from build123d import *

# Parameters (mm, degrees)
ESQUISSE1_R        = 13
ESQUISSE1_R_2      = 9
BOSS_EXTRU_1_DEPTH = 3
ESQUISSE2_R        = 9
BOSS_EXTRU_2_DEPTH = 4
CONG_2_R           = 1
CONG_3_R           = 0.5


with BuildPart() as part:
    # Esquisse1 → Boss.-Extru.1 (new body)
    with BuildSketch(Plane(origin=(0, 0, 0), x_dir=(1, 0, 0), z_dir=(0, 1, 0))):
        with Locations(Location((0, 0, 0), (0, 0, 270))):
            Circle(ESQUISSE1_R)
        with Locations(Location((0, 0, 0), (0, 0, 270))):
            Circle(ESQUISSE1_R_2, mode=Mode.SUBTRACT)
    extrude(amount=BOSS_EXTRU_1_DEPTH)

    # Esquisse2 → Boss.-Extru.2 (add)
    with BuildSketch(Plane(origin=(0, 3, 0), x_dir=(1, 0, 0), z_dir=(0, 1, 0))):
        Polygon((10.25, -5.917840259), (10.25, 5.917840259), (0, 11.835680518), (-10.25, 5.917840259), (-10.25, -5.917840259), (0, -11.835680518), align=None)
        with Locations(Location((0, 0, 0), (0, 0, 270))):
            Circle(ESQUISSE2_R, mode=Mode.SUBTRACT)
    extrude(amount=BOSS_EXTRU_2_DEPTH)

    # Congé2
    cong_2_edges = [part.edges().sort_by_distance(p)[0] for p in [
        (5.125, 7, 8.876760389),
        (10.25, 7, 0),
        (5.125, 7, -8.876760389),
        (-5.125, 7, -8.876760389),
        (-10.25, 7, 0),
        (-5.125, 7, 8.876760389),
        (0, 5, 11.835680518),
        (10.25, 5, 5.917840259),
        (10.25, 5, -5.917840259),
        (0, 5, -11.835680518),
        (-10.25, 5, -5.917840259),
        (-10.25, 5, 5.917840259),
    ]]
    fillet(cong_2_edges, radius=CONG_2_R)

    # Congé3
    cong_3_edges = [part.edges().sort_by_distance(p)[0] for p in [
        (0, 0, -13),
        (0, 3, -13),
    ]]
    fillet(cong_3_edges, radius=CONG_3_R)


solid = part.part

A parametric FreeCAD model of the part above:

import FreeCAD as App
import Part
import Sketcher
Q = App.Units.Quantity


def edges_at(feature, points):
    """Names of the edges that pass closest to the given points."""
    edges = feature.Shape.Edges
    near = lambda p: min(range(len(edges)), key=lambda i: edges[i].distToShape(Part.Vertex(*p))[0])
    return sorted({f"Edge{near(p) + 1}" for p in points})


def add_polygon(sketch, points):
    """Adds a closed chain of lines whose ends are joined by coincident constraints."""
    first, n = sketch.GeometryCount, len(points)
    for a, b in zip(points, points[1:] + points[:1]):
        sketch.addGeometry(Part.LineSegment(App.Vector(*a, 0), App.Vector(*b, 0)), False)
    for i in range(n):
        sketch.addConstraint(Sketcher.Constraint("Coincident", first + i, 2, first + (i + 1) % n, 1))

doc = App.newDocument("Part")
body = doc.addObject("PartDesign::Body", "Body")

# Sketch on XZ plane
sketch1 = body.newObject("Sketcher::SketchObject", "Sketch")
sketch1.AttachmentSupport = (doc.getObject("XZ_Plane"), [""])
sketch1.MapMode = "FlatFace"
sketch1.addGeometry([
    Part.Circle(App.Vector(0, 0, 0), App.Vector(0, 0, 1), 13),
    Part.Circle(App.Vector(0, 0, 0), App.Vector(0, 0, 1), 9),
], False)
sketch1.addConstraint([
    Sketcher.Constraint("Coincident", 0, 3, -1, 1),
    Sketcher.Constraint("Coincident", 1, 3, -1, 1),
    Sketcher.Constraint("Diameter", 0, 26.0),
    Sketcher.Constraint("Diameter", 1, 18.0),
])
pad1 = body.newObject("PartDesign::Pad", "Pad")
pad1.Profile = sketch1
pad1.Length = 3
pad1.Reversed = True

# Sketch on XZ plane
sketch2 = body.newObject("Sketcher::SketchObject", "Sketch001")
sketch2.AttachmentSupport = (doc.getObject("XZ_Plane"), [""])
sketch2.MapMode = "FlatFace"
sketch2.AttachmentOffset = App.Placement(App.Vector(0, 0, -3), App.Rotation())
add_polygon(sketch2, [(10, 6), (10, -6), (0, -12), (-10, -6), (-10, 6), (0, 12)])  # lines 0-5
sketch2.addGeometry(Part.Circle(App.Vector(0, 0, 0), App.Vector(0, 0, 1), 9), False)  # 6
sketch2.addConstraint([
    Sketcher.Constraint("Vertical", 0),
    Sketcher.Constraint("Vertical", 3),
    Sketcher.Constraint("Coincident", 6, 3, -1, 1),
    Sketcher.Constraint("Symmetric", 0, 2, 3, 2, -1, 1),
    Sketcher.Constraint("Symmetric", 1, 2, 4, 2, -1, 1),
    Sketcher.Constraint("PointOnObject", 1, 2, -2),
    Sketcher.Constraint("Parallel", 2, 5),
    Sketcher.Constraint("Horizontal", 0, 2, 2, 2),
    Sketcher.Constraint("Diameter", 6, 18.0),
    Sketcher.Constraint("Angle", 1, Q("-150 deg")),
    Sketcher.Constraint("DistanceX", 2, 2, 0, 2, 20.5),
    Sketcher.Constraint("DistanceY", 0, 2, 0, 1, 11.835681),
])
pad2 = body.newObject("PartDesign::Pad", "Pad001")
pad2.Profile = sketch2
pad2.Length = 4
pad2.Reversed = True
doc.recompute()

fillet = body.newObject("PartDesign::Fillet", "Fillet")
fillet.Base = (pad2, edges_at(pad2, [
    (5.125, 7, 8.877),
    (10.25, 7, 0),
    (5.125, 7, -8.877),
    (-5.125, 7, -8.877),
    (-10.25, 7, 0),
    (-5.125, 7, 8.877),
    (0, 5, 11.836),
    (10.25, 5, 5.918),
    (10.25, 5, -5.918),
    (0, 5, -11.836),
    (-10.25, 5, -5.918),
    (-10.25, 5, 5.918),
]))
fillet.Radius = 1
doc.recompute()

fillet2 = body.newObject("PartDesign::Fillet", "Fillet001")
fillet2.Base = (fillet, edges_at(fillet, [(0, 0, -13), (0, 3, -13)]))
fillet2.Radius = 0.5

doc.recompute()
